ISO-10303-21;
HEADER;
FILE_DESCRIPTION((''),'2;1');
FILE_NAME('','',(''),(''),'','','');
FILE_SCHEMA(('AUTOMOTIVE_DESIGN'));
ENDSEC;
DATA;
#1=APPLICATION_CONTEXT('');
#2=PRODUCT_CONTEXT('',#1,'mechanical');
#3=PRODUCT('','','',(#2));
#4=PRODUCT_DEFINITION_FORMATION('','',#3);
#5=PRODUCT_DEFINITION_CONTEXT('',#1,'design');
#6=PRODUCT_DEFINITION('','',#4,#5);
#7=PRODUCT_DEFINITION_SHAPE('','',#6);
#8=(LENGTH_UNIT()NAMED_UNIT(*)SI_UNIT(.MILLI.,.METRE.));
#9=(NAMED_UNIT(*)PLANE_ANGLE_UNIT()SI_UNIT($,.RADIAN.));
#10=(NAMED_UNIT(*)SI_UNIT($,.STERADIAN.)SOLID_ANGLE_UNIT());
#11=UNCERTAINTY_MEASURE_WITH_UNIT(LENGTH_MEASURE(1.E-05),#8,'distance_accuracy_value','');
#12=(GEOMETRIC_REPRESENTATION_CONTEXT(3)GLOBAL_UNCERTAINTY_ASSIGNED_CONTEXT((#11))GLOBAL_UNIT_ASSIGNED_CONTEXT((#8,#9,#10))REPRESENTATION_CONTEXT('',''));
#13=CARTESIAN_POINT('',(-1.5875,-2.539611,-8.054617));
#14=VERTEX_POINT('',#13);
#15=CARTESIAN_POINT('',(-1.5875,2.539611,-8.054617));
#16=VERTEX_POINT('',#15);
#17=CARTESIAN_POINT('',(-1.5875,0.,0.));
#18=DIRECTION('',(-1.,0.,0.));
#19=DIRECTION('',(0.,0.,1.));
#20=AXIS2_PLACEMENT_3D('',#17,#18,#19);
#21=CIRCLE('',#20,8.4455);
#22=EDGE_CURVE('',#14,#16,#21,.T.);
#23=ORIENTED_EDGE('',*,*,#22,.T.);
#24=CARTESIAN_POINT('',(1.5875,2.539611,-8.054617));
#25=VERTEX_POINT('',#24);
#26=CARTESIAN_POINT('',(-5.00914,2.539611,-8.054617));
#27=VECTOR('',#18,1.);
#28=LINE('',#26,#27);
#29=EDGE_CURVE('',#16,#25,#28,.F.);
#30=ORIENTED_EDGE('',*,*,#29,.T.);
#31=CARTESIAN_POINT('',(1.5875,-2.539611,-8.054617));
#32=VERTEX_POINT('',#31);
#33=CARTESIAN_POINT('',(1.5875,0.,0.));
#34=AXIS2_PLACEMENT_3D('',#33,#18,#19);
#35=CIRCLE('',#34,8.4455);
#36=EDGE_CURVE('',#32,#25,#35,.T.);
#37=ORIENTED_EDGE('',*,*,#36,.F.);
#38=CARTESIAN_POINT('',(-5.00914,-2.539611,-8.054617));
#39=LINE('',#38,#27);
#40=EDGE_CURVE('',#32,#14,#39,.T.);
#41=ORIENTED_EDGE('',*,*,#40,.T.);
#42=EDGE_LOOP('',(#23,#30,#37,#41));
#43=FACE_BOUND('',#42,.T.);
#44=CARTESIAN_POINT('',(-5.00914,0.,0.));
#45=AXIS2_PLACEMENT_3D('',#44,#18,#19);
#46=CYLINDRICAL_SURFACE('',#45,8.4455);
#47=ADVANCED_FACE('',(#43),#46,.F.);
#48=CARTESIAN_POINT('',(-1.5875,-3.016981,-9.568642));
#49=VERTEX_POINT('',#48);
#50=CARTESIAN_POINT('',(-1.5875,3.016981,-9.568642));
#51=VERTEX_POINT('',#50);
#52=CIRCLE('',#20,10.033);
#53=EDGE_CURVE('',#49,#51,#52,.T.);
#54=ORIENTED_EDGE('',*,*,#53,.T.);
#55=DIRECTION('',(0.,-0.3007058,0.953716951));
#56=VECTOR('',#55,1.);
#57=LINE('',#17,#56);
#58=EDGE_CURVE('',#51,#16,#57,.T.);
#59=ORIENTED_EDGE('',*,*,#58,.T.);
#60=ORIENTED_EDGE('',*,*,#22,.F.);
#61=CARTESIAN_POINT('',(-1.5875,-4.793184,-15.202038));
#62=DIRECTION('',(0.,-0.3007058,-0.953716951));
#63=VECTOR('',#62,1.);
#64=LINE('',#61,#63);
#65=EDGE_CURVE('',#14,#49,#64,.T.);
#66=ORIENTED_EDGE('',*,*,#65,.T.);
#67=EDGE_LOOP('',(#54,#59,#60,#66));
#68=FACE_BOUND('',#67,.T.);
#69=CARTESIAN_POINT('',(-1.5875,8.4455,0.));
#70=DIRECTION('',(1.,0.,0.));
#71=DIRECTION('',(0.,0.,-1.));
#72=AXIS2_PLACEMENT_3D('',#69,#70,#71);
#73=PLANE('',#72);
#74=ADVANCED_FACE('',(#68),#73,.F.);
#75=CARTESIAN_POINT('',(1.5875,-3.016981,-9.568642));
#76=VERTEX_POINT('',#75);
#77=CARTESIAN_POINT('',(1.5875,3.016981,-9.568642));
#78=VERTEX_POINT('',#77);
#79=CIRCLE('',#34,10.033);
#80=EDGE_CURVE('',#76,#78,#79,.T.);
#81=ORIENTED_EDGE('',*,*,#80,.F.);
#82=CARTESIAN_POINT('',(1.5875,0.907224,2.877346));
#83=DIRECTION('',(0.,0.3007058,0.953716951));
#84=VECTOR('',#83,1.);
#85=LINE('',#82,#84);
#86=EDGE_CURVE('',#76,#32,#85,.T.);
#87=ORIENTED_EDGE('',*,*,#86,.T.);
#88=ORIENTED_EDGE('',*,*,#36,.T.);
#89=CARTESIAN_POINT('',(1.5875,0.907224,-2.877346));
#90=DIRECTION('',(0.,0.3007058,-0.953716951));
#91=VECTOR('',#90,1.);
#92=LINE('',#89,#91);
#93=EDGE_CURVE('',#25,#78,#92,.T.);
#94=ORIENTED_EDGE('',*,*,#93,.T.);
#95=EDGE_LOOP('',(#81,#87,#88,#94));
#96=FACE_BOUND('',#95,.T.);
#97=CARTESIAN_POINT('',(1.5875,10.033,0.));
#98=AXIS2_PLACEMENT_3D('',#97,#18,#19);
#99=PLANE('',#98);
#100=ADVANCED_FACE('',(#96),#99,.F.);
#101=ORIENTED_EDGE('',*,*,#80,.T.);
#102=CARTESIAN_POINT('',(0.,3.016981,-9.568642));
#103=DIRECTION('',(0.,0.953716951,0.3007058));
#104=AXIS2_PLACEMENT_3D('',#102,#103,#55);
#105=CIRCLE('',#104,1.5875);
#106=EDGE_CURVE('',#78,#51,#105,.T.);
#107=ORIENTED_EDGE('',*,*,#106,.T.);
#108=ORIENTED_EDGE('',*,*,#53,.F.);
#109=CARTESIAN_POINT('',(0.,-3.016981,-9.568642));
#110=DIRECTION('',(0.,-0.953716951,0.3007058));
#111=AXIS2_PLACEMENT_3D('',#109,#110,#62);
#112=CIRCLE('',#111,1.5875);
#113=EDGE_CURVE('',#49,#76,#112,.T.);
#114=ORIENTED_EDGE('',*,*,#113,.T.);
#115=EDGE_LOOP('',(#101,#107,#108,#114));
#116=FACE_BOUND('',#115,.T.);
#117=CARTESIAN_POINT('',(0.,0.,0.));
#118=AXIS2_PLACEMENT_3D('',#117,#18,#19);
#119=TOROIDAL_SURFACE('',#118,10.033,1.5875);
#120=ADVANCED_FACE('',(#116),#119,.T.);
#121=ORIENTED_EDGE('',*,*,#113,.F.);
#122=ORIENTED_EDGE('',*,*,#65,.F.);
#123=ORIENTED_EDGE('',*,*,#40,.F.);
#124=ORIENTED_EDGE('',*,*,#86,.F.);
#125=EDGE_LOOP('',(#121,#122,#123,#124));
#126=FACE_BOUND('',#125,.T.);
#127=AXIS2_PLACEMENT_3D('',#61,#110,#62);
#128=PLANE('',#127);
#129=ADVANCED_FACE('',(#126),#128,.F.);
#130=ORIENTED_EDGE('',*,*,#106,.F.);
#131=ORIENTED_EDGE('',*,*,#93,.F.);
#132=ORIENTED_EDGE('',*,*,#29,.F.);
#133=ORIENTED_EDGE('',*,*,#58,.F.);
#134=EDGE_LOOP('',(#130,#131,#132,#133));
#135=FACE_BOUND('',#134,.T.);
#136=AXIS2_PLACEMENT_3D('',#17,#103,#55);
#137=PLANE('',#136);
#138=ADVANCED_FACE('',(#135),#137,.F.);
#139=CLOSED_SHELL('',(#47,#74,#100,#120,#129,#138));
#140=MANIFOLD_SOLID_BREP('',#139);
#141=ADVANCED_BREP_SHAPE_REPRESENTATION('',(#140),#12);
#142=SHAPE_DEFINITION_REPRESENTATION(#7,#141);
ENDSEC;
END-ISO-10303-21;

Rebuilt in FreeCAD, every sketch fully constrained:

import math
import FreeCAD as App
import Part
import Sketcher
from FreeCAD import Vector
Q = App.Units.Quantity

doc = App.newDocument("Part")
body = doc.addObject("PartDesign::Body", "Body")

sketch1 = doc.addObject("Sketcher::SketchObject", "Sketch")
body.addObject(sketch1)
sketch1.AttachmentSupport = (doc.XY_Plane, [""])
sketch1.MapMode = "FlatFace"
sketch1.addGeometry([
    Part.LineSegment(Vector(1.6, 8.4, 0), Vector(1.6, 10, 0)),
    Part.ArcOfCircle(Part.Circle(Vector(0, 10, 0), Vector(0, 0, 1), 1.6), math.radians(0), math.radians(180)),
    Part.LineSegment(Vector(-1.6, 10, 0), Vector(-1.6, 8.4, 0)),
    Part.LineSegment(Vector(-1.6, 8.4, 0), Vector(1.6, 8.4, 0)),
], False)
sketch1.addConstraint([
    Sketcher.Constraint("Tangent", 0, 2, 1, 1),
    Sketcher.Constraint("Tangent", 1, 2, 2, 1),
    Sketcher.Constraint("Coincident", 2, 2, 3, 1),
    Sketcher.Constraint("Coincident", 3, 2, 0, 1),
    Sketcher.Constraint("Vertical", 0),
    Sketcher.Constraint("Vertical", 2),
    Sketcher.Constraint("Horizontal", 3),
    Sketcher.Constraint("PointOnObject", 1, 3, -2),
    Sketcher.Constraint("Radius", 1, Q("0.0625 in")),
    Sketcher.Constraint("DistanceY", 0, 1, 0, 2, Q("0.0625 in")),
    Sketcher.Constraint("DistanceY", -1, 1, 1, 3, Q("0.395 in")),
])
revolution = doc.addObject("PartDesign::Revolution", "Revolution")
body.addObject(revolution)
revolution.Profile = sketch1
revolution.ReferenceAxis = (sketch1, ["H_Axis"])
revolution.Angle = 360

sketch2 = doc.addObject("Sketcher::SketchObject", "Sketch001")
body.addObject(sketch2)
sketch2.AttachmentSupport = (doc.YZ_Plane, [""])
sketch2.MapMode = "FlatFace"
sketch2.addGeometry([
    Part.LineSegment(Vector(5, -15, 0), Vector(0, 0, 0)),
    Part.LineSegment(Vector(0, 0, 0), Vector(-5, -15, 0)),
    Part.LineSegment(Vector(-5, -15, 0), Vector(5, -15, 0)),
], False)
sketch2.addConstraint([
    Sketcher.Constraint("Coincident", 0, 2, 1, 1),
    Sketcher.Constraint("Coincident", 1, 2, 2, 1),
    Sketcher.Constraint("Coincident", 2, 2, 0, 1),
    Sketcher.Constraint("Coincident", 0, 2, -1, 1),
    Sketcher.Constraint("Angle", 0, Q("107.5 deg")),
    Sketcher.Constraint("Angle", 1, Q("-107.5 deg")),
    Sketcher.Constraint("Distance", 1, 15.93978),
    Sketcher.Constraint("Distance", 2, 9.58425),
])
pocket1 = doc.addObject("PartDesign::Pocket", "Pocket")
body.addObject(pocket1)
pocket1.Profile = sketch2
pocket1.Type = "ThroughAll"
pocket1.Midplane = True

doc.recompute()
